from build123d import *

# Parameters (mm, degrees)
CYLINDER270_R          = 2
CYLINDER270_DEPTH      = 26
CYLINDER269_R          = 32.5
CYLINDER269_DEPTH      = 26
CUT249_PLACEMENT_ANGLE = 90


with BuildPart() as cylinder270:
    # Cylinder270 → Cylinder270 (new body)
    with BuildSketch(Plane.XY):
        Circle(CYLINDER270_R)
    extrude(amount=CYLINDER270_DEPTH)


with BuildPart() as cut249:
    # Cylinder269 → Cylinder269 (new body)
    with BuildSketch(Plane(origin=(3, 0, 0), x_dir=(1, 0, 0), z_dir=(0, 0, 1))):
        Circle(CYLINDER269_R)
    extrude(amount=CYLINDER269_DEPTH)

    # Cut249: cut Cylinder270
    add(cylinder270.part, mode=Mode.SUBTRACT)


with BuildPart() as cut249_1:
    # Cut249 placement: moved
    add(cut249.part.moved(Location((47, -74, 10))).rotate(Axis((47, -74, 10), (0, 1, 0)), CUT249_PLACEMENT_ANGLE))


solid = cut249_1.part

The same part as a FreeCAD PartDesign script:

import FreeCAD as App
import Part
import Sketcher

V = App.Vector

doc = App.newDocument("Part")
body = doc.addObject("PartDesign::Body", "Body")

# Sketch on XY plane
sketch1 = body.newObject("Sketcher::SketchObject", "Sketch")
sketch1.AttachmentSupport = (doc.getObject("XY_Plane"), [""])
sketch1.MapMode = "FlatFace"
sketch1.addGeometry(Part.Circle(V(0, 0, 0), V(0, 0, 1), 2), False)
sketch1.addConstraint(Sketcher.Constraint("Coincident", 0, 3, -1, 1))
sketch1.addConstraint(Sketcher.Constraint("Diameter", 0, 4.0))
pad1 = body.newObject("PartDesign::Pad", "Pad")
pad1.Profile = sketch1
pad1.Length = 26
body2 = doc.addObject("PartDesign::Body", "Body001")

# Sketch on XY plane
sketch2 = body2.newObject("Sketcher::SketchObject", "Sketch001")
sketch2.AttachmentSupport = (doc.getObject("XY_Plane001"), [""])
sketch2.MapMode = "FlatFace"
sketch2.addGeometry(Part.Circle(V(3, 0, 0), V(0, 0, 1), 32), False)
sketch2.addConstraint(Sketcher.Constraint("PointOnObject", 0, 3, -1))
sketch2.addConstraint(Sketcher.Constraint("Diameter", 0, 65.0))
sketch2.addConstraint(Sketcher.Constraint("DistanceX", -1, 1, 0, 3, 3.0))
pad2 = body2.newObject("PartDesign::Pad", "Pad001")
pad2.Profile = sketch2
pad2.Length = 26
doc.recompute()

boolean = body2.newObject("PartDesign::Boolean", "Boolean")
boolean.Type = "Cut"
boolean.addObjects([body])
body3 = doc.addObject("PartDesign::Body", "Body002")
doc.recompute()

body2.Placement = App.Placement(V(47, -74, 10), App.Rotation(V(0, 1, 0), 90))
boolean2 = body3.newObject("PartDesign::Boolean", "Boolean001")
boolean2.Type = "Fuse"
boolean2.addObjects([body2])

doc.recompute()
